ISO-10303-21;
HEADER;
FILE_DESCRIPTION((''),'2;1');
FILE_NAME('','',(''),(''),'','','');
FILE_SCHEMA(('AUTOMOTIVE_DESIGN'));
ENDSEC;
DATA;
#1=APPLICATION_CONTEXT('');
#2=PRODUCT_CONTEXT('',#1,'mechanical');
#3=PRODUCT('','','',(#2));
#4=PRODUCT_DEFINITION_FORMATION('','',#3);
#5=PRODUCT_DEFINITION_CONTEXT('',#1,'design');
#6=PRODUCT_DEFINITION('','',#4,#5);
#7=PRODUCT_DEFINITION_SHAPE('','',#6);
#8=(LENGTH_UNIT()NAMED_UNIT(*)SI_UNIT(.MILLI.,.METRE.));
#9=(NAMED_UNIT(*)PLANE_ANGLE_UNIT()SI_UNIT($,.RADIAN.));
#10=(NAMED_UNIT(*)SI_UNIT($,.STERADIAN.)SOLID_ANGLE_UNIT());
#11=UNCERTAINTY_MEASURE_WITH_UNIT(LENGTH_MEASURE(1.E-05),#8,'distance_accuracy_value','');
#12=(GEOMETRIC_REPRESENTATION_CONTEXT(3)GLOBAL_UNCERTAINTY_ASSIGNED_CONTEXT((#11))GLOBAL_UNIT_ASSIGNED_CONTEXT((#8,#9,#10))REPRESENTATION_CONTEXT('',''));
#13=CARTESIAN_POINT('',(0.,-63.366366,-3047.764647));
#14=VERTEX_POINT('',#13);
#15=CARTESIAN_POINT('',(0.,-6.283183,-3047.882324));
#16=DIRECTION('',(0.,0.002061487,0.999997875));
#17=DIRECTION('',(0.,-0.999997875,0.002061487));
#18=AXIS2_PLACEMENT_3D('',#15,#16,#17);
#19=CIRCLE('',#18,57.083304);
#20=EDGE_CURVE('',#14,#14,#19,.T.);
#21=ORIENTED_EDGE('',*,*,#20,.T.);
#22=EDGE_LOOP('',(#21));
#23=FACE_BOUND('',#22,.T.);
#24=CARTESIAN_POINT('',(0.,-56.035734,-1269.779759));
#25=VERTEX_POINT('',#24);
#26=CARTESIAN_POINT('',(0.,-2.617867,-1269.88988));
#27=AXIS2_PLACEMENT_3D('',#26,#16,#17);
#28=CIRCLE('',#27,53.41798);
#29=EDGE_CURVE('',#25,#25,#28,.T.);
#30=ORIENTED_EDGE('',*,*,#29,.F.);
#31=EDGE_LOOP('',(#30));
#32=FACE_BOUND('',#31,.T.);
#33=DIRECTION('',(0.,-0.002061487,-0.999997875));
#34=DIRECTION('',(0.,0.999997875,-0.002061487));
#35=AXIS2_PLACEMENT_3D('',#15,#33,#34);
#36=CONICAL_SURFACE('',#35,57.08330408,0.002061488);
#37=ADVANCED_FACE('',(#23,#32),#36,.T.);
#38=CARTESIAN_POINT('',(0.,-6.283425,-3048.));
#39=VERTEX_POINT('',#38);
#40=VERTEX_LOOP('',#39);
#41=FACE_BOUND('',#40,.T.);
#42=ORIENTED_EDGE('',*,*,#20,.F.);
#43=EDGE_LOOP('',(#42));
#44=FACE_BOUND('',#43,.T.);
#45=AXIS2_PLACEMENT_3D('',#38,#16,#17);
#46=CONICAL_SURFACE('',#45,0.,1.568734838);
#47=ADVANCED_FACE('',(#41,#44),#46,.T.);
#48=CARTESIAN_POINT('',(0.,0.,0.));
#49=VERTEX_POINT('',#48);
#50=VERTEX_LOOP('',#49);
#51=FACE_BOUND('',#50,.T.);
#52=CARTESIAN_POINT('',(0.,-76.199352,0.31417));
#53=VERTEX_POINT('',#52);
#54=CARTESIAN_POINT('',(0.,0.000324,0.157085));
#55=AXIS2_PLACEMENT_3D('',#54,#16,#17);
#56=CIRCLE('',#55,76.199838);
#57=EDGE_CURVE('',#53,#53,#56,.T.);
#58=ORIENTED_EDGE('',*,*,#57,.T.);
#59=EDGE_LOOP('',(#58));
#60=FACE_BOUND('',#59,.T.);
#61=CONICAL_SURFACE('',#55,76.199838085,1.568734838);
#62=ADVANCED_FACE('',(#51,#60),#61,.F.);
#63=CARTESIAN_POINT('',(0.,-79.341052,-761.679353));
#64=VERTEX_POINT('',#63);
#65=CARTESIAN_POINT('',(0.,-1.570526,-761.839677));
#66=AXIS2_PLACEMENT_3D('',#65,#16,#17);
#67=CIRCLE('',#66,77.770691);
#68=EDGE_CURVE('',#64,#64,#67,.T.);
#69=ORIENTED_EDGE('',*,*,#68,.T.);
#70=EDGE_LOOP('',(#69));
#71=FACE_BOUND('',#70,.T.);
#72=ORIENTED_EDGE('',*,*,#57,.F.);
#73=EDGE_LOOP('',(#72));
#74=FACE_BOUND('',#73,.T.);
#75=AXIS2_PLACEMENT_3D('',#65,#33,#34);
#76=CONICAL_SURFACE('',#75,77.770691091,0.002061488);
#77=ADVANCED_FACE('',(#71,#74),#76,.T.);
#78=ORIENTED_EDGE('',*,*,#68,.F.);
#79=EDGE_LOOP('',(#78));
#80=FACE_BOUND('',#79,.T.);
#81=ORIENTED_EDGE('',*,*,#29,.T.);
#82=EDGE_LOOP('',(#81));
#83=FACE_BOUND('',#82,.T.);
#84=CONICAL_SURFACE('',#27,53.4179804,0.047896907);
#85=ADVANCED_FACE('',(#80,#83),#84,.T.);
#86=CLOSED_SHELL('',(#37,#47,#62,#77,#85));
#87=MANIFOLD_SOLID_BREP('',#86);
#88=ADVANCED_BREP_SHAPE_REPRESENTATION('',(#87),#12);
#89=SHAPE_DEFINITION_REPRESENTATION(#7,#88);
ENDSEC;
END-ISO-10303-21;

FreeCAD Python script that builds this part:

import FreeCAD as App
import Part
import Sketcher
from FreeCAD import Vector
Q = App.Units.Quantity


def add_polygon(sketch, points):
    """Adds a closed chain of lines whose ends are joined by coincident constraints."""
    first, n = sketch.GeometryCount, len(points)
    for a, b in zip(points, points[1:] + points[:1]):
        sketch.addGeometry(Part.LineSegment(App.Vector(*a, 0), App.Vector(*b, 0)), False)
    for i in range(n):
        sketch.addConstraint(Sketcher.Constraint("Coincident", first + i, 2, first + (i + 1) % n, 1))

doc = App.newDocument("Part")
body = doc.addObject("PartDesign::Body", "Body")

# Sketch on YZ plane
sketch1 = body.newObject("Sketcher::SketchObject", "Sketch")
sketch1.AttachmentSupport = (doc.getObject("YZ_Plane"), [""])
sketch1.MapMode = "FlatFace"
add_polygon(sketch1, [(76, -762), (76, 0), (0, 0), (-6, -3048), (51, -3048), (51, -1270)])  # lines 0-5
sketch1.addGeometry(Part.LineSegment(Vector(0, 0, 0), Vector(-6, -3048, 0)), True)  # axis
sketch1.addConstraint(Sketcher.Constraint("Vertical", 0))
sketch1.addConstraint(Sketcher.Constraint("Horizontal", 1))
sketch1.addConstraint(Sketcher.Constraint("Horizontal", 3))
sketch1.addConstraint(Sketcher.Constraint("Vertical", 4))
sketch1.addConstraint(Sketcher.Constraint("Coincident", 1, 2, -1, 1))
sketch1.addConstraint(Sketcher.Constraint("Coincident", 6, 2, 2, 2))
sketch1.addConstraint(Sketcher.Constraint("Parallel", 2, 6))
sketch1.addConstraint(Sketcher.Constraint("DistanceX", 1, 2, 1, 1, Q("3 in")))
sketch1.addConstraint(Sketcher.Constraint("DistanceY", 0, 1, 0, 2, Q("30 in")))
sketch1.addConstraint(Sketcher.Constraint("DistanceY", 4, 1, 4, 2, Q("70 in")))
sketch1.addConstraint(Sketcher.Constraint("DistanceY", 2, 2, -1, 1, Q("120 in")))
sketch1.addConstraint(Sketcher.Constraint("DistanceX", -1, 1, 3, 2, Q("2 in")))
sketch1.addConstraint(Sketcher.Constraint("Distance", 6, Q("3048.163561 mm")))
sketch1.addConstraint(Sketcher.Constraint("DistanceX", 3, 1, 3, 2, Q("57.083425 mm")))
revolution = body.newObject("PartDesign::Revolution", "Revolution")
revolution.Profile = sketch1
revolution.ReferenceAxis = (sketch1, ["Axis0"])
revolution.Angle = 360

doc.recompute()
